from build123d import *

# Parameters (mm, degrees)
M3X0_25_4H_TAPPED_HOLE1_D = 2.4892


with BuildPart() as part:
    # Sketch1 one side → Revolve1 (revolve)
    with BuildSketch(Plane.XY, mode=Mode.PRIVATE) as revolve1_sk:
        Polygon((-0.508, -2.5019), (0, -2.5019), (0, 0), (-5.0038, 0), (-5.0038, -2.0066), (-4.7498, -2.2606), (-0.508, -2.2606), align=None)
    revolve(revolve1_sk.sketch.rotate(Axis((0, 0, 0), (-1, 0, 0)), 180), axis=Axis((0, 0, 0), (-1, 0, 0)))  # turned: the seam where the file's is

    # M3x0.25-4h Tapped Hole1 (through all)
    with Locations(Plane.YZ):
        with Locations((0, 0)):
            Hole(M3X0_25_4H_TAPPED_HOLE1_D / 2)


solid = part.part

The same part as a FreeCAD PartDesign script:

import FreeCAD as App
import Part
import Sketcher
Q = App.Units.Quantity

doc = App.newDocument("Part")
body = doc.addObject("PartDesign::Body", "Body")

sketch1 = body.newObject("Sketcher::SketchObject", "Sketch")
sketch1.AttachmentSupport = (doc.getObject("XY_Plane"), [""])
sketch1.MapMode = "FlatFace"
sketch1.addGeometry([
    Part.LineSegment(App.Vector(-0.51, -2.5, 0), App.Vector(0, -2.5, 0)),
    Part.LineSegment(App.Vector(0, -2.5, 0), App.Vector(0, 0, 0)),
    Part.LineSegment(App.Vector(0, 0, 0), App.Vector(-5, 0, 0)),
    Part.LineSegment(App.Vector(-5, 0, 0), App.Vector(-5, -2.01, 0)),
    Part.LineSegment(App.Vector(-5, -2.01, 0), App.Vector(-4.75, -2.26, 0)),
    Part.LineSegment(App.Vector(-4.75, -2.26, 0), App.Vector(-0.51, -2.26, 0)),
    Part.LineSegment(App.Vector(-0.51, -2.26, 0), App.Vector(-0.51, -2.5, 0)),
], False)
sketch1.addConstraint([
    Sketcher.Constraint("Coincident", 0, 2, 1, 1),
    Sketcher.Constraint("Coincident", 1, 2, 2, 1),
    Sketcher.Constraint("Coincident", 2, 2, 3, 1),
    Sketcher.Constraint("Coincident", 3, 2, 4, 1),
    Sketcher.Constraint("Coincident", 4, 2, 5, 1),
    Sketcher.Constraint("Coincident", 5, 2, 6, 1),
    Sketcher.Constraint("Coincident", 6, 2, 0, 1),
    Sketcher.Constraint("Horizontal", 0),
    Sketcher.Constraint("Vertical", 1),
    Sketcher.Constraint("Horizontal", 2),
    Sketcher.Constraint("Vertical", 3),
    Sketcher.Constraint("Horizontal", 5),
    Sketcher.Constraint("Vertical", 6),
    Sketcher.Constraint("Coincident", 1, 2, -1, 1),
    Sketcher.Constraint("Angle", 4, Q("-45 deg")),
    Sketcher.Constraint("DistanceX", 0, 1, 0, 2, Q("0.02 in")),
    Sketcher.Constraint("DistanceX", 2, 2, 2, 1, Q("0.197 in")),
    Sketcher.Constraint("DistanceX", 5, 1, 5, 2, Q("0.167 in")),
    Sketcher.Constraint("DistanceY", 3, 2, 3, 1, Q("0.079 in")),
    Sketcher.Constraint("DistanceY", 1, 1, 1, 2, Q("0.0985 in")),
])
revolution = body.newObject("PartDesign::Revolution", "Revolution")
revolution.Profile = sketch1
revolution.ReferenceAxis = (sketch1, ["H_Axis"])
revolution.Angle = 360

sketch2 = body.newObject("Sketcher::SketchObject", "Sketch001")
sketch2.AttachmentSupport = (doc.getObject("YZ_Plane"), [""])
sketch2.MapMode = "FlatFace"
sketch2.addGeometry(Part.Circle(App.Vector(0, 0, 0), App.Vector(0, 0, 1), 1.2), False)
sketch2.addConstraint([
    Sketcher.Constraint("Coincident", 0, 3, -1, 1),
    Sketcher.Constraint("Diameter", 0, Q("0.098 in")),
])
doc.recompute()
hole = body.newObject("PartDesign::Hole", "Hole")
hole.Profile = sketch2
hole.ThreadType = "None"
hole.Diameter = Q("0.098 in")
hole.DepthType = "ThroughAll"

doc.recompute()
